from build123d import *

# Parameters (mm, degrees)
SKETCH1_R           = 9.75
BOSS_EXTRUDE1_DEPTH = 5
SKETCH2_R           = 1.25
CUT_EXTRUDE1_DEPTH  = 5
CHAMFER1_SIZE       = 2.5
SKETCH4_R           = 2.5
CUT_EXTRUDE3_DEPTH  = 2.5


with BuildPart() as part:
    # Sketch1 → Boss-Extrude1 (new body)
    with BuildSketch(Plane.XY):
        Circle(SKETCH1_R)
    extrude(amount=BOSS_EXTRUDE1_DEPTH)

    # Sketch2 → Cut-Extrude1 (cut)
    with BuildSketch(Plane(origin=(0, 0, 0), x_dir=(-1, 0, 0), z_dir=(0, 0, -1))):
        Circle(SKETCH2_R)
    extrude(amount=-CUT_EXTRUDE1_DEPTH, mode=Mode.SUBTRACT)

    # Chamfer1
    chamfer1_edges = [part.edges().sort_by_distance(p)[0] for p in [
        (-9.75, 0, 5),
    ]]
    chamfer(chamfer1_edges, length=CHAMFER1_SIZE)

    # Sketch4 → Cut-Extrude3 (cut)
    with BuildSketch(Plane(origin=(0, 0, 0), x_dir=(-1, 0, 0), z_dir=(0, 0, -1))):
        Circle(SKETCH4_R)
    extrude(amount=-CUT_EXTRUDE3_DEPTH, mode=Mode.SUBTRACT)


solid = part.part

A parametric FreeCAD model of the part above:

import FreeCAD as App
import Part
import Sketcher
Q = App.Units.Quantity


def edges_at(feature, points):
    """Names of the edges that pass closest to the given points."""
    edges = feature.Shape.Edges
    near = lambda p: min(range(len(edges)), key=lambda i: edges[i].distToShape(Part.Vertex(*p))[0])
    return sorted({f"Edge{near(p) + 1}" for p in points})

doc = App.newDocument("Part")
params = doc.addObject("Spreadsheet::Sheet", "Params")
for row, (alias, value) in enumerate([
    ("sketch1_diameter", "19.5 mm"),
    ("pad1_length", "5 mm"),
    ("sketch2_diameter", "2.5 mm"),
    ("pocket1_length", "5 mm"),
    ("chamfer_size", "2.5 mm"),
    ("sketch3_diameter", "5 mm"),
    ("pocket2_length", "2.5 mm"),
], start=1):
    params.set(f"A{row}", alias)
    params.set(f"B{row}", "=" + value)
    params.setAlias(f"B{row}", alias)

body = doc.addObject("PartDesign::Body", "Body")

sketch1 = body.newObject("Sketcher::SketchObject", "Sketch")
sketch1.AttachmentSupport = (doc.getObject("XY_Plane"), [""])
sketch1.MapMode = "FlatFace"
sketch1.addGeometry(Part.Circle(App.Vector(0, 0, 0), App.Vector(0, 0, 1), 10), False)
sketch1.addConstraint(Sketcher.Constraint("Coincident", 0, 3, -1, 1))
sketch1.addConstraint(Sketcher.Constraint("Diameter", 0, Q("19.5 mm")))
sketch1.setExpression("Constraints[1]", "Params.sketch1_diameter")
pad1 = body.newObject("PartDesign::Pad", "Pad")
pad1.Profile = sketch1
pad1.setExpression("Length", "Params.pad1_length")

sketch2 = body.newObject("Sketcher::SketchObject", "Sketch001")
sketch2.AttachmentSupport = (doc.getObject("XY_Plane"), [""])
sketch2.MapMode = "FlatFace"
sketch2.addGeometry(Part.Circle(App.Vector(0, 0, 0), App.Vector(0, 0, 1), 1.2), False)
sketch2.addConstraint(Sketcher.Constraint("Coincident", 0, 3, -1, 1))
sketch2.addConstraint(Sketcher.Constraint("Diameter", 0, Q("2.5 mm")))
sketch2.setExpression("Constraints[1]", "Params.sketch2_diameter")
pocket1 = body.newObject("PartDesign::Pocket", "Pocket")
pocket1.Profile = sketch2
pocket1.setExpression("Length", "Params.pocket1_length")
pocket1.Reversed = True
doc.recompute()

chamfer = body.newObject("PartDesign::Chamfer", "Chamfer")
chamfer.Base = (pocket1, edges_at(pocket1, [(-9.75, 0, 5)]))
chamfer.setExpression("Size", "Params.chamfer_size")

sketch3 = body.newObject("Sketcher::SketchObject", "Sketch002")
sketch3.AttachmentSupport = (doc.getObject("XY_Plane"), [""])
sketch3.MapMode = "FlatFace"
sketch3.addGeometry(Part.Circle(App.Vector(0, 0, 0), App.Vector(0, 0, 1), 2.5), False)
sketch3.addConstraint(Sketcher.Constraint("Coincident", 0, 3, -1, 1))
sketch3.addConstraint(Sketcher.Constraint("Diameter", 0, Q("5 mm")))
sketch3.setExpression("Constraints[1]", "Params.sketch3_diameter")
pocket2 = body.newObject("PartDesign::Pocket", "Pocket001")
pocket2.Profile = sketch3
pocket2.setExpression("Length", "Params.pocket2_length")
pocket2.Reversed = True

doc.recompute()
